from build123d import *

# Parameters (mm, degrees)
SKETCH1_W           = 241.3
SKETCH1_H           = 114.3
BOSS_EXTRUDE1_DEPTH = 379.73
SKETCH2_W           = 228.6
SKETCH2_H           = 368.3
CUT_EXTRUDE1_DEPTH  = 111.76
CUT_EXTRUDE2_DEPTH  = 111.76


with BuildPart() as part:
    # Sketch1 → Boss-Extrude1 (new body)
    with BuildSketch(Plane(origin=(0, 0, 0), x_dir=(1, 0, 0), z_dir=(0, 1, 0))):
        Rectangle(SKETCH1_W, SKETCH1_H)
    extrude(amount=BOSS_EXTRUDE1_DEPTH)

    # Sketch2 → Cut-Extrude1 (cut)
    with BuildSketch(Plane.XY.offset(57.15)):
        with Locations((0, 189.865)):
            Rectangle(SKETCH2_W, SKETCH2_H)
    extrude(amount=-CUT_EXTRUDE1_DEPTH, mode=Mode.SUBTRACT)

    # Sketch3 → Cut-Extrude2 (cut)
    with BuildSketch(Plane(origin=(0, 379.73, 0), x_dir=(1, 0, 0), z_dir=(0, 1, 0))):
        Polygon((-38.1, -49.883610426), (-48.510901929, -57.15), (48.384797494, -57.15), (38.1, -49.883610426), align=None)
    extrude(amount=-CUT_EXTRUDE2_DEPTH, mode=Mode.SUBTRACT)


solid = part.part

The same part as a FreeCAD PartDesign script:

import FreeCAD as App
import Part
import Sketcher
Q = App.Units.Quantity


def add_polygon(sketch, points):
    """Adds a closed chain of lines whose ends are joined by coincident constraints."""
    first, n = sketch.GeometryCount, len(points)
    for a, b in zip(points, points[1:] + points[:1]):
        sketch.addGeometry(Part.LineSegment(App.Vector(*a, 0), App.Vector(*b, 0)), False)
    for i in range(n):
        sketch.addConstraint(Sketcher.Constraint("Coincident", first + i, 2, first + (i + 1) % n, 1))

doc = App.newDocument("Part")
body = doc.addObject("PartDesign::Body", "Body")

# Sketch on XZ plane
sketch1 = body.newObject("Sketcher::SketchObject", "Sketch")
sketch1.AttachmentSupport = (doc.getObject("XZ_Plane"), [""])
sketch1.MapMode = "FlatFace"
add_polygon(sketch1, [(-121, -57), (-121, 57), (121, 57), (121, -57)])  # lines 0-3
sketch1.addConstraint([
    Sketcher.Constraint("Vertical", 0),
    Sketcher.Constraint("Horizontal", 1),
    Sketcher.Constraint("Vertical", 2),
    Sketcher.Constraint("Horizontal", 3),
    Sketcher.Constraint("Symmetric", 0, 2, 2, 2, -1, 1),
    Sketcher.Constraint("DistanceX", 1, 1, 1, 2, Q("9.5 in")),
    Sketcher.Constraint("DistanceY", 0, 1, 0, 2, Q("4.5 in")),
])
pad1 = body.newObject("PartDesign::Pad", "Pad")
pad1.Profile = sketch1
pad1.Length = Q("14.95 in")
pad1.Reversed = True

# Sketch on XY plane
sketch2 = body.newObject("Sketcher::SketchObject", "Sketch001")
sketch2.AttachmentSupport = (doc.getObject("XY_Plane"), [""])
sketch2.MapMode = "FlatFace"
sketch2.AttachmentOffset = App.Placement(App.Vector(0, 0, 2.25 * 25.4), App.Rotation())
add_polygon(sketch2, [(-114, 374), (-114, 6), (114, 6), (114, 374)])  # lines 0-3
sketch2.addConstraint([
    Sketcher.Constraint("Vertical", 0),
    Sketcher.Constraint("Horizontal", 1),
    Sketcher.Constraint("Vertical", 2),
    Sketcher.Constraint("Horizontal", 3),
    Sketcher.Constraint("DistanceX", 1, 1, 1, 2, Q("9 in")),
    Sketcher.Constraint("DistanceY", 0, 2, 0, 1, Q("14.5 in")),
    Sketcher.Constraint("DistanceX", 0, 2, -1, 1, Q("4.5 in")),
    Sketcher.Constraint("DistanceY", -1, 1, 0, 2, Q("0.225 in")),
])
pocket1 = body.newObject("PartDesign::Pocket", "Pocket")
pocket1.Profile = sketch2
pocket1.Length = Q("4.4 in")

# Sketch on XZ plane
sketch3 = body.newObject("Sketcher::SketchObject", "Sketch002")
sketch3.AttachmentSupport = (doc.getObject("XZ_Plane"), [""])
sketch3.MapMode = "FlatFace"
sketch3.AttachmentOffset = App.Placement(App.Vector(0, 0, -14.95 * 25.4), App.Rotation())
add_polygon(sketch3, [(-38, 50), (-49, 57), (48, 57), (38, 50)])  # lines 0-3
sketch3.addConstraint([
    Sketcher.Constraint("Horizontal", 1),
    Sketcher.Constraint("Horizontal", 3),
    Sketcher.Constraint("DistanceX", 3, 2, 3, 1, Q("3 in")),
    Sketcher.Constraint("DistanceX", -1, 1, 2, 2, Q("1.5 in")),
    Sketcher.Constraint("DistanceY", -1, 1, 0, 2, Q("2.25 in")),
    Sketcher.Constraint("DistanceX", 1, 1, 1, 2, 96.895699),
    Sketcher.Constraint("DistanceX", 0, 2, -1, 1, 48.510902),
    Sketcher.Constraint("DistanceY", -1, 1, 2, 2, 49.88361),
])
pocket2 = body.newObject("PartDesign::Pocket", "Pocket001")
pocket2.Profile = sketch3
pocket2.Length = Q("4.4 in")
pocket2.Reversed = True

doc.recompute()
